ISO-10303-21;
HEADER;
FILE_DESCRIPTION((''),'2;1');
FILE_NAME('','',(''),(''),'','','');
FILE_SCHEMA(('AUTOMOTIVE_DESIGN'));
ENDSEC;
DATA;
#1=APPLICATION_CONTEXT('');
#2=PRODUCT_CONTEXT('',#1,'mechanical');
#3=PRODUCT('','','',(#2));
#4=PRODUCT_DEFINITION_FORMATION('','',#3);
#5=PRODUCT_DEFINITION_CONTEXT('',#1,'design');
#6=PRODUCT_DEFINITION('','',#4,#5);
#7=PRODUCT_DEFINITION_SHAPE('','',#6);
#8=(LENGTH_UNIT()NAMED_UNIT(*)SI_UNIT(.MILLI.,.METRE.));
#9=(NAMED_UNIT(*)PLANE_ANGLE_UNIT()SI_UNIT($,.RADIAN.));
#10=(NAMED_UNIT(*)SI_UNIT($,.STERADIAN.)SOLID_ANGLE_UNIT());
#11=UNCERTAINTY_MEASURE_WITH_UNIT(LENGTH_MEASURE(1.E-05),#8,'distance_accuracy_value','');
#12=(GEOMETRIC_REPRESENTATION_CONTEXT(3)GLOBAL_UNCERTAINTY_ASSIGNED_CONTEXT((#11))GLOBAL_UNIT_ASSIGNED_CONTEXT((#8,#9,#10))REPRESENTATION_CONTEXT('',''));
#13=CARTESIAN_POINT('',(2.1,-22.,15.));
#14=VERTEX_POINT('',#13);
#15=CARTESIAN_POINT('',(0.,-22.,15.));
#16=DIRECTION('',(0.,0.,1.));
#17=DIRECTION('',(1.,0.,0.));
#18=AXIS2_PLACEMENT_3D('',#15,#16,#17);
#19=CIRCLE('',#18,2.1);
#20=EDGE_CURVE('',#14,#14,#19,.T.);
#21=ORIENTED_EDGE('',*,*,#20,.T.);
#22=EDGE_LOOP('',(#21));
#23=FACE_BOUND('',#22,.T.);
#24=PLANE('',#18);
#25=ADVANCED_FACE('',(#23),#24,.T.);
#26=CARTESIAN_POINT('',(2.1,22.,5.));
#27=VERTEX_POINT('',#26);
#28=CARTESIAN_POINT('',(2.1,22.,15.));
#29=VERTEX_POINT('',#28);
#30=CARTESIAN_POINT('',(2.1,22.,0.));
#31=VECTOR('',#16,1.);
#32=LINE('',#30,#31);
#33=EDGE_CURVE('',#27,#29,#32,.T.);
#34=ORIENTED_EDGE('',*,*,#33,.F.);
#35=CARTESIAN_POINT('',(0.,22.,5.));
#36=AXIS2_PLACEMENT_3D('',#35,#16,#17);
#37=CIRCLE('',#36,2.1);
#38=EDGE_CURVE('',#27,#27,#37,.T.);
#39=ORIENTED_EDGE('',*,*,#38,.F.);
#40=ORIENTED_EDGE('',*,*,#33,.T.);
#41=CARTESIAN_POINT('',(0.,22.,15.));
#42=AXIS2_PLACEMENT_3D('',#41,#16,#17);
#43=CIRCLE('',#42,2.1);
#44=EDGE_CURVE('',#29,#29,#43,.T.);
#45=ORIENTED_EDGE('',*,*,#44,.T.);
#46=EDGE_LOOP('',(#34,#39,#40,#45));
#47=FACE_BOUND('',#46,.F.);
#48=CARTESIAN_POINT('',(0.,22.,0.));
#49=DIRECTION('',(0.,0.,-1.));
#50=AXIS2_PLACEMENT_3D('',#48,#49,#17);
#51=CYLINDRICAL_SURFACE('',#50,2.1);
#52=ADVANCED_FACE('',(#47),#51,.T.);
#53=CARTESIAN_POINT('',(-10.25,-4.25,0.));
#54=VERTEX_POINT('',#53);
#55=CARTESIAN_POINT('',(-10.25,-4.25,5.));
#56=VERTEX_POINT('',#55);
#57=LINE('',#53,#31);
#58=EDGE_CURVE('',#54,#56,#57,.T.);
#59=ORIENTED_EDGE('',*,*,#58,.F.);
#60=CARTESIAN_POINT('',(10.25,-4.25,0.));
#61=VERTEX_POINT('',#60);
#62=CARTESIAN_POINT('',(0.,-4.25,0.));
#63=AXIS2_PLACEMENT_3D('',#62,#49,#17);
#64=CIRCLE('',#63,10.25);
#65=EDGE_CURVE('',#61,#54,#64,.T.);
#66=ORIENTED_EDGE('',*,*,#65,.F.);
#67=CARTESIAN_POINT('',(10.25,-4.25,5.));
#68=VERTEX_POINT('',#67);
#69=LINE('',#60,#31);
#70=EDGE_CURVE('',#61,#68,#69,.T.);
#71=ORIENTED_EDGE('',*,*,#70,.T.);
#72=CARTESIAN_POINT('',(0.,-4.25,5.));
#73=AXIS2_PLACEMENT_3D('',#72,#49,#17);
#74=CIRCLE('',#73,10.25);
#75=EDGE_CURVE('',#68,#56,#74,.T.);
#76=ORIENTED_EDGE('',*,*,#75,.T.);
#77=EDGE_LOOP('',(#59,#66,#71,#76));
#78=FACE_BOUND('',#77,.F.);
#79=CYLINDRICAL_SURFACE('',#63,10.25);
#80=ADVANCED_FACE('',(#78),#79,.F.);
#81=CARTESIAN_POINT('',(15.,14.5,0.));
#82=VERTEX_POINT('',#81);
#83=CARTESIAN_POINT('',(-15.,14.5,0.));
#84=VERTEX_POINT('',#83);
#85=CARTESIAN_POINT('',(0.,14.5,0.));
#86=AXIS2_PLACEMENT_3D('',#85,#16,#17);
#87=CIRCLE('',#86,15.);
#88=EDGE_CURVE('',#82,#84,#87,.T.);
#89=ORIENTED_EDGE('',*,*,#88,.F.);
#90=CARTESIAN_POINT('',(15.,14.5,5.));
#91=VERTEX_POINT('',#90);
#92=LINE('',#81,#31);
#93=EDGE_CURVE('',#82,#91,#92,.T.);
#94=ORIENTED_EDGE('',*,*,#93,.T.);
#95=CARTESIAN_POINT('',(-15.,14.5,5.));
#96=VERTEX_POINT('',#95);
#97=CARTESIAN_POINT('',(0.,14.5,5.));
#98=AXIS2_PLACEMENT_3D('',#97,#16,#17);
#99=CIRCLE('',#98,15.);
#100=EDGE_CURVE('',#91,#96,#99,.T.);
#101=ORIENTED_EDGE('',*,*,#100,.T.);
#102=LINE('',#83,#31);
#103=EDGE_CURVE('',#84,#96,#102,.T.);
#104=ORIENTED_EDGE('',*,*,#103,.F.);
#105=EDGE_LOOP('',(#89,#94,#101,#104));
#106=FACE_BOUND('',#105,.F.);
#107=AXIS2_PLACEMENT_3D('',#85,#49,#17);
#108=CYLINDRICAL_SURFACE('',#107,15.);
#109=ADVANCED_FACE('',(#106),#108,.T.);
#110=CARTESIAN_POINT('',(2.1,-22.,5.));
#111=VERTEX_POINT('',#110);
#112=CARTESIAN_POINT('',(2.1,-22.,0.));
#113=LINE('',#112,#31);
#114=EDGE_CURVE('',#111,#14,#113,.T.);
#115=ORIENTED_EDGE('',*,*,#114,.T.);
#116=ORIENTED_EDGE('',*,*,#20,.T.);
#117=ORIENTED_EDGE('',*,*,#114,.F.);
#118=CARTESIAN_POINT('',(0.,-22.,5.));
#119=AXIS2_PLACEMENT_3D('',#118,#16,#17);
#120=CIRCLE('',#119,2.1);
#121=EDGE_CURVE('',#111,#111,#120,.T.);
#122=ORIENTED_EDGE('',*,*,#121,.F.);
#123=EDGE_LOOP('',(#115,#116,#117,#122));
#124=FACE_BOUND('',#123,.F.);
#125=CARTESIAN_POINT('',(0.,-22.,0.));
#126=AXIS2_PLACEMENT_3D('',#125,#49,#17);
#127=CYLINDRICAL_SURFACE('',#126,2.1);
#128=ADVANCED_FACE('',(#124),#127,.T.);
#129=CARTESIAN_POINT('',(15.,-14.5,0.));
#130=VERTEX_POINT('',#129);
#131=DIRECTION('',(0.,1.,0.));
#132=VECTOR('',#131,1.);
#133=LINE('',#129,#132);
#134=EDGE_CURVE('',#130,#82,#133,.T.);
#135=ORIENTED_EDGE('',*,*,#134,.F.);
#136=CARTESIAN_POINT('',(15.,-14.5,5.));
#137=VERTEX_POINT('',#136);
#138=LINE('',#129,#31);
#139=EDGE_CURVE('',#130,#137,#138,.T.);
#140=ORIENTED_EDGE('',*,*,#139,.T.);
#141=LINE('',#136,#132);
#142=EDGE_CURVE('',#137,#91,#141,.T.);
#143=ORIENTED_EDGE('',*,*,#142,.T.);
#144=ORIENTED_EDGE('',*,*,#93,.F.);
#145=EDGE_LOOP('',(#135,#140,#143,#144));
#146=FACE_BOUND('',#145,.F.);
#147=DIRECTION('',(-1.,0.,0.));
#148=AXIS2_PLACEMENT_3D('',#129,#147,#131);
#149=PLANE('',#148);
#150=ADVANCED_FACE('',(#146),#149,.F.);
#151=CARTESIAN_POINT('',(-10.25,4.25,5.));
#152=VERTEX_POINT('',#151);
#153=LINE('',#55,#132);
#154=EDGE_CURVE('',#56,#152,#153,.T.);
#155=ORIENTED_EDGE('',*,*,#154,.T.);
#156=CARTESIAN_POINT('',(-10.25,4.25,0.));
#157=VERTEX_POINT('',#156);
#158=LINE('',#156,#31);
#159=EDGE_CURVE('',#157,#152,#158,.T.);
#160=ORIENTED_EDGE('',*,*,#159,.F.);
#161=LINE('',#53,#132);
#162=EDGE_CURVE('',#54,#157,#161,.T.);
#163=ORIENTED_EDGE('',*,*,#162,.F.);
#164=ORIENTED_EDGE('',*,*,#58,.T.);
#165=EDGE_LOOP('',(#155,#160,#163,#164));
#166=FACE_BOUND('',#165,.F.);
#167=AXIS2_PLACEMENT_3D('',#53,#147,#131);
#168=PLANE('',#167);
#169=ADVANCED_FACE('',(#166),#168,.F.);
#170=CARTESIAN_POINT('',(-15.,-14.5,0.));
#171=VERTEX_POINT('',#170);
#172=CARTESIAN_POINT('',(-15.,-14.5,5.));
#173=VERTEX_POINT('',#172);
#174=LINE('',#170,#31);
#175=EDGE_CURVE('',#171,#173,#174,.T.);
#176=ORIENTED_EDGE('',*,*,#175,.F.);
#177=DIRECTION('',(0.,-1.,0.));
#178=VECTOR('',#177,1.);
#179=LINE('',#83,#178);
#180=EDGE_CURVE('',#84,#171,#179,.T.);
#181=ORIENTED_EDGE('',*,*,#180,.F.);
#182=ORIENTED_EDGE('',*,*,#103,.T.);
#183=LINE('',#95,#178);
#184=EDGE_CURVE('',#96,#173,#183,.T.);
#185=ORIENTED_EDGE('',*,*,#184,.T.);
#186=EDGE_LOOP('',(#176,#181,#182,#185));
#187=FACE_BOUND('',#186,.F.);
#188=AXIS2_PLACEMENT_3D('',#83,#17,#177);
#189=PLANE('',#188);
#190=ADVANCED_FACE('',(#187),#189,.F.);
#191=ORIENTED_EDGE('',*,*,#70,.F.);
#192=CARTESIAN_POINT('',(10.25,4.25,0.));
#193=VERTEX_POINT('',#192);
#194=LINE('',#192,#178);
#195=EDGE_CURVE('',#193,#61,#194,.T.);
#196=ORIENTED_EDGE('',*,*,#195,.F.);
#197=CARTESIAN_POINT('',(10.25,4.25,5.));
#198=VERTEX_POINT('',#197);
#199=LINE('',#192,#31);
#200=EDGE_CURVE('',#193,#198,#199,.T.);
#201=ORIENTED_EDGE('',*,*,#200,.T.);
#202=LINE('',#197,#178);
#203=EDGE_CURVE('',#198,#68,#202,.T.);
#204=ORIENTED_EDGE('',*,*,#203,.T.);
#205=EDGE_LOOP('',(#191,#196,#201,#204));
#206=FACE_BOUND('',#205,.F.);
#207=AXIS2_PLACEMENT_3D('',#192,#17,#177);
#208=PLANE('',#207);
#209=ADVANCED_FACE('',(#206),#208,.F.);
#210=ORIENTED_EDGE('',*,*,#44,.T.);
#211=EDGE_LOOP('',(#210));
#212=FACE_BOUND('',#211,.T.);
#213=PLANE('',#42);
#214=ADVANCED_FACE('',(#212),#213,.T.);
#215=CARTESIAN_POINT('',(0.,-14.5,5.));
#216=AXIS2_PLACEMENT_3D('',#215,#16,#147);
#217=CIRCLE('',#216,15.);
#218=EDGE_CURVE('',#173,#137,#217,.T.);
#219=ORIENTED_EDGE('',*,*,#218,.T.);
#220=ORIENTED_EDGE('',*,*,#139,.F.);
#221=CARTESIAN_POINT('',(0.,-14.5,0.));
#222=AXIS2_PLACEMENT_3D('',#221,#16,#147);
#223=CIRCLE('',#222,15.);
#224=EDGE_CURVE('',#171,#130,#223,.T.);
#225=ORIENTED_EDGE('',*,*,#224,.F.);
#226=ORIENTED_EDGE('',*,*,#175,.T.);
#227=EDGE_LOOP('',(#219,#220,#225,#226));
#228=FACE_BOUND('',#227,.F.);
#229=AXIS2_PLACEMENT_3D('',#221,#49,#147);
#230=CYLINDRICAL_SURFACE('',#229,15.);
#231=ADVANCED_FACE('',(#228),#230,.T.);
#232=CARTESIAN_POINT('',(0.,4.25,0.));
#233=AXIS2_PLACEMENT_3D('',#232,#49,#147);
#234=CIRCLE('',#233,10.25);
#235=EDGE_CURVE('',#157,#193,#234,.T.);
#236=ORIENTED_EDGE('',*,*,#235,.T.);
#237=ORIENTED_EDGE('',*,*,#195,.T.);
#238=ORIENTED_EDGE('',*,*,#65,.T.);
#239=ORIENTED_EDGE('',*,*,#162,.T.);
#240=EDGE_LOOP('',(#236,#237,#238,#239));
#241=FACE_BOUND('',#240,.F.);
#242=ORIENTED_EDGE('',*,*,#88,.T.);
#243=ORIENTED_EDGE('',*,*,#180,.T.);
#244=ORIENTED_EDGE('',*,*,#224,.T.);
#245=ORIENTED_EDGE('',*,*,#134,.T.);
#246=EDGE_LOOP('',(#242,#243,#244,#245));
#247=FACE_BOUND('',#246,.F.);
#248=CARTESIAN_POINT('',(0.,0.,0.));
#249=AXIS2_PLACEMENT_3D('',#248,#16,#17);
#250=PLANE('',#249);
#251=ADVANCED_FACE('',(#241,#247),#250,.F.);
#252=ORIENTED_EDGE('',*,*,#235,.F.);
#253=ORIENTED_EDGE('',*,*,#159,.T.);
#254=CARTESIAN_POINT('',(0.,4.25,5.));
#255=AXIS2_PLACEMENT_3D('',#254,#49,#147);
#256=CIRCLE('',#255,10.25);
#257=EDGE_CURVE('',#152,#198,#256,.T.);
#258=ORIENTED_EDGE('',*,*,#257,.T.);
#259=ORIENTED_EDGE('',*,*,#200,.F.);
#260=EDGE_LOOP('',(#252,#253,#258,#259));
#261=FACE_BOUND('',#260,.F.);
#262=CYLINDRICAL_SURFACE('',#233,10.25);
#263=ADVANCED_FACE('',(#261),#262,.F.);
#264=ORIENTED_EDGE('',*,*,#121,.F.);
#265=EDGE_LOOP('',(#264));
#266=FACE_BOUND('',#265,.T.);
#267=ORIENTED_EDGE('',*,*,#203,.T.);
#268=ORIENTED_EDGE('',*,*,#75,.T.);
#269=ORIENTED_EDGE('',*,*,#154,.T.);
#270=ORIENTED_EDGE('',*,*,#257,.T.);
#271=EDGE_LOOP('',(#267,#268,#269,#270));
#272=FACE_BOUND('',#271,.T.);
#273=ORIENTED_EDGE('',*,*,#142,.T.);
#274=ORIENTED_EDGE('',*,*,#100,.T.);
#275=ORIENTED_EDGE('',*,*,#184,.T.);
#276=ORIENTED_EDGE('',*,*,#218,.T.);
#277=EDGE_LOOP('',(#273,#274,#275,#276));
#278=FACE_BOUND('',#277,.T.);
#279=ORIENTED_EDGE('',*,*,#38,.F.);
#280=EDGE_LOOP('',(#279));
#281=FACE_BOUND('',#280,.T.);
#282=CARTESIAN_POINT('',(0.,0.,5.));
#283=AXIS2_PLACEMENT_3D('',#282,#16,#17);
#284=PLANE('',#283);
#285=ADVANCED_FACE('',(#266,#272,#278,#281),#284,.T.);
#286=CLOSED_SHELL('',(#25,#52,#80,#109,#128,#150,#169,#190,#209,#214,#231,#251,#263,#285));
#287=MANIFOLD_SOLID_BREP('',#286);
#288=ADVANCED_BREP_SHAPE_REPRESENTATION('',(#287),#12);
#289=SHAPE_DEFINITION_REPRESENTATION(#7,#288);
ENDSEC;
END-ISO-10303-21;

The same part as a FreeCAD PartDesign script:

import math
import FreeCAD as App
import Part
import Sketcher
from FreeCAD import Vector

doc = App.newDocument("Part")
body = doc.addObject("PartDesign::Body", "Body")

sketch1 = body.newObject("Sketcher::SketchObject", "Sketch")
sketch1.AttachmentSupport = (doc.getObject("XY_Plane"), [""])
sketch1.MapMode = "FlatFace"
sketch1.addGeometry([
    Part.LineSegment(Vector(15, -14.5, 0), Vector(15, 14.5, 0)),
    Part.ArcOfCircle(Part.Circle(Vector(0, 14.5, 0), Vector(0, 0, 1), 15), math.radians(0), math.radians(180)),
    Part.LineSegment(Vector(-15, 14.5, 0), Vector(-15, -14.5, 0)),
    Part.ArcOfCircle(Part.Circle(Vector(0, -14.5, 0), Vector(0, 0, 1), 15), math.radians(180), math.radians(360)),
    Part.Circle(Vector(0, -22, 0), Vector(0, 0, 1), 2.1),
    Part.LineSegment(Vector(-10.25, -4.25, 0), Vector(-10.25, 4.25, 0)),
    Part.ArcOfCircle(Part.Circle(Vector(0, 4.25, 0), Vector(0, 0, 1), 10.25), math.radians(0), math.radians(180)),
    Part.LineSegment(Vector(10.25, 4.25, 0), Vector(10.25, -4.25, 0)),
    Part.ArcOfCircle(Part.Circle(Vector(0, -4.25, 0), Vector(0, 0, 1), 10.25), math.radians(180), math.radians(360)),
    Part.Circle(Vector(0, 22, 0), Vector(0, 0, 1), 2.1),
], False)
sketch1.addConstraint([
    Sketcher.Constraint("Tangent", 0, 2, 1, 1),
    Sketcher.Constraint("Tangent", 1, 2, 2, 1),
    Sketcher.Constraint("Tangent", 2, 2, 3, 1),
    Sketcher.Constraint("Tangent", 3, 2, 0, 1),
    Sketcher.Constraint("Tangent", 5, 2, 6, 2),
    Sketcher.Constraint("Tangent", 6, 1, 7, 1),
    Sketcher.Constraint("Tangent", 7, 2, 8, 2),
    Sketcher.Constraint("Tangent", 8, 1, 5, 1),
    Sketcher.Constraint("Vertical", 0),
    Sketcher.Constraint("Vertical", 2),
    Sketcher.Constraint("Vertical", 5),
    Sketcher.Constraint("Vertical", 7),
    Sketcher.Constraint("Equal", 4, 9),
    Sketcher.Constraint("Symmetric", 1, 3, 3, 3, -1, 1),
    Sketcher.Constraint("Symmetric", 6, 3, 8, 3, -1, 1),
    Sketcher.Constraint("Symmetric", 4, 3, 9, 3, -1, 1),
    Sketcher.Constraint("PointOnObject", 4, 3, -2),
    Sketcher.Constraint("Radius", 1, 15.0),
    Sketcher.Constraint("Diameter", 4, 4.2),
    Sketcher.Constraint("DistanceY", 0, 1, 0, 2, 29.0),
    Sketcher.Constraint("Radius", 6, 10.25),
    Sketcher.Constraint("DistanceY", 5, 1, 5, 2, 8.5),
    Sketcher.Constraint("DistanceY", 4, 3, -1, 1, 22.0),
])
pad1 = body.newObject("PartDesign::Pad", "Pad")
pad1.Profile = sketch1
pad1.Length = 5

sketch2 = body.newObject("Sketcher::SketchObject", "Sketch001")
sketch2.AttachmentSupport = (doc.getObject("XY_Plane"), [""])
sketch2.MapMode = "FlatFace"
sketch2.addGeometry([
    Part.Circle(Vector(0, 22, 0), Vector(0, 0, 1), 2.1),
    Part.Circle(Vector(0, -22, 0), Vector(0, 0, 1), 2.1),
], False)
sketch2.addConstraint([
    Sketcher.Constraint("Equal", 0, 1),
    Sketcher.Constraint("Symmetric", 0, 3, 1, 3, -1, 1),
    Sketcher.Constraint("PointOnObject", 0, 3, -2),
    Sketcher.Constraint("Diameter", 0, 4.2),
    Sketcher.Constraint("DistanceY", -1, 1, 0, 3, 22.0),
])
pad2 = body.newObject("PartDesign::Pad", "Pad001")
pad2.Profile = sketch2
pad2.Length = 15

doc.recompute()
